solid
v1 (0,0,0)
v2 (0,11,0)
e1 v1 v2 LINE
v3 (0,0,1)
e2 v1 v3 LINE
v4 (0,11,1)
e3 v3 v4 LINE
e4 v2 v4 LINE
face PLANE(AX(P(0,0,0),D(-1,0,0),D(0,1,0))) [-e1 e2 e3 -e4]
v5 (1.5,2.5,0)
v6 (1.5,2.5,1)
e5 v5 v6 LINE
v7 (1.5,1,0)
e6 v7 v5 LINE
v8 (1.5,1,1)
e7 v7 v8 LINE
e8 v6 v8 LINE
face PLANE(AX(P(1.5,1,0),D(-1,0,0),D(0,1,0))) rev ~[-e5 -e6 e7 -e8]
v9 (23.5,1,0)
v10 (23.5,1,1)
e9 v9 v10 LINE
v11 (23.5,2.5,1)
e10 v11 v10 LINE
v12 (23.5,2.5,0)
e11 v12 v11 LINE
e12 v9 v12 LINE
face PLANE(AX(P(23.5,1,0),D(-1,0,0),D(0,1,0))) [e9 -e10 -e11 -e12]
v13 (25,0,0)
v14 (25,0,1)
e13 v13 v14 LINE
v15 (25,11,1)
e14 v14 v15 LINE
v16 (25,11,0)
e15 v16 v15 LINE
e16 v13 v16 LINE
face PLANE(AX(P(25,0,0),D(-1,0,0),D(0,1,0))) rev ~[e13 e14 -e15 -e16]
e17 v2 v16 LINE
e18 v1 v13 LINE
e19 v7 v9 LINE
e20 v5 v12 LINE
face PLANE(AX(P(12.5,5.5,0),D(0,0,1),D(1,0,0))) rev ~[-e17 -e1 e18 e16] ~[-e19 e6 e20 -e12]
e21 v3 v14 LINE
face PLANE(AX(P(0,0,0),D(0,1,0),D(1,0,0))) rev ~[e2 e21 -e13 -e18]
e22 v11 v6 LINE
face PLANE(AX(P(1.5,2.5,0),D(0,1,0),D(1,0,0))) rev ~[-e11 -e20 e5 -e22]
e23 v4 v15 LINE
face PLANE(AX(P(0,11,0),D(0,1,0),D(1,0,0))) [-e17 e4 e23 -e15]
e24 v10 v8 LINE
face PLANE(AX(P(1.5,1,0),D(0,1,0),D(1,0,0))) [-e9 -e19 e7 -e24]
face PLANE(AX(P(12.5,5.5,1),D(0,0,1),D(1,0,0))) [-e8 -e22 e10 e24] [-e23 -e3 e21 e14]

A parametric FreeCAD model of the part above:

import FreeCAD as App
import Part
import Sketcher


def add_polygon(sketch, points):
    """Adds a closed chain of lines whose ends are joined by coincident constraints."""
    first, n = sketch.GeometryCount, len(points)
    for a, b in zip(points, points[1:] + points[:1]):
        sketch.addGeometry(Part.LineSegment(App.Vector(*a, 0), App.Vector(*b, 0)), False)
    for i in range(n):
        sketch.addConstraint(Sketcher.Constraint("Coincident", first + i, 2, first + (i + 1) % n, 1))

doc = App.newDocument("Part")
body = doc.addObject("PartDesign::Body", "Body")

# Sketch on XY plane
sketch1 = doc.addObject("Sketcher::SketchObject", "Sketch")
body.addObject(sketch1)
sketch1.AttachmentSupport = (doc.XY_Plane, [""])
sketch1.MapMode = "FlatFace"
add_polygon(sketch1, [(1.5, 2.5), (1.5, 1), (23.5, 1), (23.5, 2.5)])  # lines 0-3
sketch1.addConstraint([
    Sketcher.Constraint("Vertical", 0),
    Sketcher.Constraint("Horizontal", 1),
    Sketcher.Constraint("Vertical", 2),
    Sketcher.Constraint("Horizontal", 3),
    Sketcher.Constraint("DistanceX", 1, 1, 1, 2, 22.0),
    Sketcher.Constraint("DistanceY", 0, 2, 0, 1, 1.5),
    Sketcher.Constraint("DistanceY", -1, 1, 0, 2, 1.0),
    Sketcher.Constraint("DistanceX", -1, 1, 0, 2, 1.5),
])
pad1 = doc.addObject("PartDesign::Pad", "Pad")
body.addObject(pad1)
pad1.Profile = sketch1
pad1.Length = 2
body2 = doc.addObject("PartDesign::Body", "Body001")

# Sketch on XY plane
sketch2 = doc.addObject("Sketcher::SketchObject", "Sketch001")
body2.addObject(sketch2)
sketch2.AttachmentSupport = (doc.getObject("XY_Plane001"), [""])
sketch2.MapMode = "FlatFace"
add_polygon(sketch2, [(0, 11), (0, 0), (25, 0), (25, 11)])  # lines 0-3
sketch2.addConstraint([
    Sketcher.Constraint("Vertical", 0),
    Sketcher.Constraint("Horizontal", 1),
    Sketcher.Constraint("Vertical", 2),
    Sketcher.Constraint("Horizontal", 3),
    Sketcher.Constraint("Coincident", 0, 2, -1, 1),
    Sketcher.Constraint("DistanceX", 1, 1, 1, 2, 25.0),
    Sketcher.Constraint("DistanceY", 0, 2, 0, 1, 11.0),
])
pad2 = doc.addObject("PartDesign::Pad", "Pad001")
body2.addObject(pad2)
pad2.Profile = sketch2
pad2.Length = 1
doc.recompute()

boolean = doc.addObject("PartDesign::Boolean", "Boolean")
body2.addObject(boolean)
boolean.Type = "Cut"
boolean.addObjects([body])

doc.recompute()
